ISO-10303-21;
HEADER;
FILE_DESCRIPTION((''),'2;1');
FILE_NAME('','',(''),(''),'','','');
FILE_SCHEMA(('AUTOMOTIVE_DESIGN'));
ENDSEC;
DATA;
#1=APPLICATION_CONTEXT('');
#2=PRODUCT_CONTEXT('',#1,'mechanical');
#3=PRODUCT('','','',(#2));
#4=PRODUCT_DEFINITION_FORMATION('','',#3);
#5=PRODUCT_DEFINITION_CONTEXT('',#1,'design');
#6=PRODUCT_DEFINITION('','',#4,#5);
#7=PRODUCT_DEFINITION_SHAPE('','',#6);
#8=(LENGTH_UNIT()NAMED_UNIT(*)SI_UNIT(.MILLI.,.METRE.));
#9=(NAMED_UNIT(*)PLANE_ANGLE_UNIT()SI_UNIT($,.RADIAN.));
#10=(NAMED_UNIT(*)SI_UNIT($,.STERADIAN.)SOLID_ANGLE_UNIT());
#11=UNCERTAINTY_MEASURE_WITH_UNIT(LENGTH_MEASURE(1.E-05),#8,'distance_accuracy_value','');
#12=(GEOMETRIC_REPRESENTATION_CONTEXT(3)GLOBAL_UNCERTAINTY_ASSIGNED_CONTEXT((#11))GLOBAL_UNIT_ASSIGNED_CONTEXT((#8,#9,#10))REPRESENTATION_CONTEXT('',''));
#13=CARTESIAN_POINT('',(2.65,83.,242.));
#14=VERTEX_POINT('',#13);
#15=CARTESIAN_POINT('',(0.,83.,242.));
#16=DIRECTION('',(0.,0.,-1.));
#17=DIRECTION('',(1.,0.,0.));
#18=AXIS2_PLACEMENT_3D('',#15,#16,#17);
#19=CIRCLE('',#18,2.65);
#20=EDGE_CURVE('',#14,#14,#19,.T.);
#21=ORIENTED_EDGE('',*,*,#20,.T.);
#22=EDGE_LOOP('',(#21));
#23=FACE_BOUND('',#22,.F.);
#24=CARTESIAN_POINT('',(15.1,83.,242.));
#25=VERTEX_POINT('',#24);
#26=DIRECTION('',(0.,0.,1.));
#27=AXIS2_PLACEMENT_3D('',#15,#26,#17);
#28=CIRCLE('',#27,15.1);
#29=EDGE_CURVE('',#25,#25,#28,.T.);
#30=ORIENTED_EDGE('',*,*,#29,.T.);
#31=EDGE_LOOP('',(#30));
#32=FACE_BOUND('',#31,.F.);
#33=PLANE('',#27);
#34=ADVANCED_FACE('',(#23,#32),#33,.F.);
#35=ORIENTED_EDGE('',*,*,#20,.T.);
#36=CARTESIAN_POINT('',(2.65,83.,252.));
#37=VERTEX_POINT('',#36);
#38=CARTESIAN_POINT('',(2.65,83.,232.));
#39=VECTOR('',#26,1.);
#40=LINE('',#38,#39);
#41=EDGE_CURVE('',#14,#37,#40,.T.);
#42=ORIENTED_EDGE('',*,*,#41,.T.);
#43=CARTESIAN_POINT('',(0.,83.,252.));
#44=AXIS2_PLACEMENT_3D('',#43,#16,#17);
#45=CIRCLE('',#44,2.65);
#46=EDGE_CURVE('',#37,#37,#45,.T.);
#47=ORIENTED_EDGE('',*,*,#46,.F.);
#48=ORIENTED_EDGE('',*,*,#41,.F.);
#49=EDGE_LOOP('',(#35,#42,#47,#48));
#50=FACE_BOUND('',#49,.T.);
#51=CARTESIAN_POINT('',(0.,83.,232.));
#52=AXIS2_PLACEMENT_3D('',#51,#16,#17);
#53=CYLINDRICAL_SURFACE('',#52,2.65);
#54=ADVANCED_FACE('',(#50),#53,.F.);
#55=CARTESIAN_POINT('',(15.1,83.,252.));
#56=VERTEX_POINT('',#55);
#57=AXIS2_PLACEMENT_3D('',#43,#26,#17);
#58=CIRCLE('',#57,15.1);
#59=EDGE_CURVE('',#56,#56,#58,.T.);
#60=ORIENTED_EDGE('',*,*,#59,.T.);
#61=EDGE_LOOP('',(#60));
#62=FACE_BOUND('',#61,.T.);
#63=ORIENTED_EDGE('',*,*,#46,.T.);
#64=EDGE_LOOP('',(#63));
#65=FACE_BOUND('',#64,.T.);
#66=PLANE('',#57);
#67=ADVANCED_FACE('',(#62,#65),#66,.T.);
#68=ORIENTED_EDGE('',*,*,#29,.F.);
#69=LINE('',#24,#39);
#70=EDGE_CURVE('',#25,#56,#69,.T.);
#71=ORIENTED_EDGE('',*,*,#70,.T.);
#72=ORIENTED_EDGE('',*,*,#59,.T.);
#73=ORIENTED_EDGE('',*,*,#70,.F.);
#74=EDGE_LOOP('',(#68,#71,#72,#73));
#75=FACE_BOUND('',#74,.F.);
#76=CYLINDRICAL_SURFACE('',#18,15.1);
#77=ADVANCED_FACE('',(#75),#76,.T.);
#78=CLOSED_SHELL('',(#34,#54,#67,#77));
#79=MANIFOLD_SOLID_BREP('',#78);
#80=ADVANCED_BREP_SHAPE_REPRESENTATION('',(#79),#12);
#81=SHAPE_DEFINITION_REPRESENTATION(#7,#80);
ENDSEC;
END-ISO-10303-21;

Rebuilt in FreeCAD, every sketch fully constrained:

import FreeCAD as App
import Part
import Sketcher

V = App.Vector
Q = App.Units.Quantity

doc = App.newDocument("Part")
body = doc.addObject("PartDesign::Body", "Body")

sketch1 = body.newObject("Sketcher::SketchObject", "Sketch")
sketch1.AttachmentSupport = (doc.getObject("XY_Plane"), [""])
sketch1.MapMode = "FlatFace"
sketch1.AttachmentOffset = App.Placement(V(0, 0, 232), App.Rotation())
sketch1.addGeometry(Part.Circle(V(0, 83, 0), V(0, 0, 1), 2.6), False)
sketch1.addConstraint([
    Sketcher.Constraint("PointOnObject", 0, 3, -2),
    Sketcher.Constraint("Diameter", 0, Q("5.3 mm")),
    Sketcher.Constraint("DistanceY", -1, 1, 0, 3, Q("83 mm")),
])
pad1 = body.newObject("PartDesign::Pad", "Pad")
pad1.Profile = sketch1
pad1.Length = 30
body2 = doc.addObject("PartDesign::Body", "Body001")

sketch2 = body2.newObject("Sketcher::SketchObject", "Sketch001")
sketch2.AttachmentSupport = (doc.getObject("XY_Plane001"), [""])
sketch2.MapMode = "FlatFace"
sketch2.AttachmentOffset = App.Placement(V(0, 0, 242), App.Rotation())
sketch2.addGeometry(Part.Circle(V(0, 83, 0), V(0, 0, 1), 15), False)
sketch2.addConstraint([
    Sketcher.Constraint("PointOnObject", 0, 3, -2),
    Sketcher.Constraint("Diameter", 0, Q("30.2 mm")),
    Sketcher.Constraint("DistanceY", -1, 1, 0, 3, Q("83 mm")),
])
pad2 = body2.newObject("PartDesign::Pad", "Pad001")
pad2.Profile = sketch2
pad2.Length = 10
doc.recompute()

boolean = body2.newObject("PartDesign::Boolean", "Boolean")
boolean.Type = "Cut"
boolean.addObjects([body])

doc.recompute()
